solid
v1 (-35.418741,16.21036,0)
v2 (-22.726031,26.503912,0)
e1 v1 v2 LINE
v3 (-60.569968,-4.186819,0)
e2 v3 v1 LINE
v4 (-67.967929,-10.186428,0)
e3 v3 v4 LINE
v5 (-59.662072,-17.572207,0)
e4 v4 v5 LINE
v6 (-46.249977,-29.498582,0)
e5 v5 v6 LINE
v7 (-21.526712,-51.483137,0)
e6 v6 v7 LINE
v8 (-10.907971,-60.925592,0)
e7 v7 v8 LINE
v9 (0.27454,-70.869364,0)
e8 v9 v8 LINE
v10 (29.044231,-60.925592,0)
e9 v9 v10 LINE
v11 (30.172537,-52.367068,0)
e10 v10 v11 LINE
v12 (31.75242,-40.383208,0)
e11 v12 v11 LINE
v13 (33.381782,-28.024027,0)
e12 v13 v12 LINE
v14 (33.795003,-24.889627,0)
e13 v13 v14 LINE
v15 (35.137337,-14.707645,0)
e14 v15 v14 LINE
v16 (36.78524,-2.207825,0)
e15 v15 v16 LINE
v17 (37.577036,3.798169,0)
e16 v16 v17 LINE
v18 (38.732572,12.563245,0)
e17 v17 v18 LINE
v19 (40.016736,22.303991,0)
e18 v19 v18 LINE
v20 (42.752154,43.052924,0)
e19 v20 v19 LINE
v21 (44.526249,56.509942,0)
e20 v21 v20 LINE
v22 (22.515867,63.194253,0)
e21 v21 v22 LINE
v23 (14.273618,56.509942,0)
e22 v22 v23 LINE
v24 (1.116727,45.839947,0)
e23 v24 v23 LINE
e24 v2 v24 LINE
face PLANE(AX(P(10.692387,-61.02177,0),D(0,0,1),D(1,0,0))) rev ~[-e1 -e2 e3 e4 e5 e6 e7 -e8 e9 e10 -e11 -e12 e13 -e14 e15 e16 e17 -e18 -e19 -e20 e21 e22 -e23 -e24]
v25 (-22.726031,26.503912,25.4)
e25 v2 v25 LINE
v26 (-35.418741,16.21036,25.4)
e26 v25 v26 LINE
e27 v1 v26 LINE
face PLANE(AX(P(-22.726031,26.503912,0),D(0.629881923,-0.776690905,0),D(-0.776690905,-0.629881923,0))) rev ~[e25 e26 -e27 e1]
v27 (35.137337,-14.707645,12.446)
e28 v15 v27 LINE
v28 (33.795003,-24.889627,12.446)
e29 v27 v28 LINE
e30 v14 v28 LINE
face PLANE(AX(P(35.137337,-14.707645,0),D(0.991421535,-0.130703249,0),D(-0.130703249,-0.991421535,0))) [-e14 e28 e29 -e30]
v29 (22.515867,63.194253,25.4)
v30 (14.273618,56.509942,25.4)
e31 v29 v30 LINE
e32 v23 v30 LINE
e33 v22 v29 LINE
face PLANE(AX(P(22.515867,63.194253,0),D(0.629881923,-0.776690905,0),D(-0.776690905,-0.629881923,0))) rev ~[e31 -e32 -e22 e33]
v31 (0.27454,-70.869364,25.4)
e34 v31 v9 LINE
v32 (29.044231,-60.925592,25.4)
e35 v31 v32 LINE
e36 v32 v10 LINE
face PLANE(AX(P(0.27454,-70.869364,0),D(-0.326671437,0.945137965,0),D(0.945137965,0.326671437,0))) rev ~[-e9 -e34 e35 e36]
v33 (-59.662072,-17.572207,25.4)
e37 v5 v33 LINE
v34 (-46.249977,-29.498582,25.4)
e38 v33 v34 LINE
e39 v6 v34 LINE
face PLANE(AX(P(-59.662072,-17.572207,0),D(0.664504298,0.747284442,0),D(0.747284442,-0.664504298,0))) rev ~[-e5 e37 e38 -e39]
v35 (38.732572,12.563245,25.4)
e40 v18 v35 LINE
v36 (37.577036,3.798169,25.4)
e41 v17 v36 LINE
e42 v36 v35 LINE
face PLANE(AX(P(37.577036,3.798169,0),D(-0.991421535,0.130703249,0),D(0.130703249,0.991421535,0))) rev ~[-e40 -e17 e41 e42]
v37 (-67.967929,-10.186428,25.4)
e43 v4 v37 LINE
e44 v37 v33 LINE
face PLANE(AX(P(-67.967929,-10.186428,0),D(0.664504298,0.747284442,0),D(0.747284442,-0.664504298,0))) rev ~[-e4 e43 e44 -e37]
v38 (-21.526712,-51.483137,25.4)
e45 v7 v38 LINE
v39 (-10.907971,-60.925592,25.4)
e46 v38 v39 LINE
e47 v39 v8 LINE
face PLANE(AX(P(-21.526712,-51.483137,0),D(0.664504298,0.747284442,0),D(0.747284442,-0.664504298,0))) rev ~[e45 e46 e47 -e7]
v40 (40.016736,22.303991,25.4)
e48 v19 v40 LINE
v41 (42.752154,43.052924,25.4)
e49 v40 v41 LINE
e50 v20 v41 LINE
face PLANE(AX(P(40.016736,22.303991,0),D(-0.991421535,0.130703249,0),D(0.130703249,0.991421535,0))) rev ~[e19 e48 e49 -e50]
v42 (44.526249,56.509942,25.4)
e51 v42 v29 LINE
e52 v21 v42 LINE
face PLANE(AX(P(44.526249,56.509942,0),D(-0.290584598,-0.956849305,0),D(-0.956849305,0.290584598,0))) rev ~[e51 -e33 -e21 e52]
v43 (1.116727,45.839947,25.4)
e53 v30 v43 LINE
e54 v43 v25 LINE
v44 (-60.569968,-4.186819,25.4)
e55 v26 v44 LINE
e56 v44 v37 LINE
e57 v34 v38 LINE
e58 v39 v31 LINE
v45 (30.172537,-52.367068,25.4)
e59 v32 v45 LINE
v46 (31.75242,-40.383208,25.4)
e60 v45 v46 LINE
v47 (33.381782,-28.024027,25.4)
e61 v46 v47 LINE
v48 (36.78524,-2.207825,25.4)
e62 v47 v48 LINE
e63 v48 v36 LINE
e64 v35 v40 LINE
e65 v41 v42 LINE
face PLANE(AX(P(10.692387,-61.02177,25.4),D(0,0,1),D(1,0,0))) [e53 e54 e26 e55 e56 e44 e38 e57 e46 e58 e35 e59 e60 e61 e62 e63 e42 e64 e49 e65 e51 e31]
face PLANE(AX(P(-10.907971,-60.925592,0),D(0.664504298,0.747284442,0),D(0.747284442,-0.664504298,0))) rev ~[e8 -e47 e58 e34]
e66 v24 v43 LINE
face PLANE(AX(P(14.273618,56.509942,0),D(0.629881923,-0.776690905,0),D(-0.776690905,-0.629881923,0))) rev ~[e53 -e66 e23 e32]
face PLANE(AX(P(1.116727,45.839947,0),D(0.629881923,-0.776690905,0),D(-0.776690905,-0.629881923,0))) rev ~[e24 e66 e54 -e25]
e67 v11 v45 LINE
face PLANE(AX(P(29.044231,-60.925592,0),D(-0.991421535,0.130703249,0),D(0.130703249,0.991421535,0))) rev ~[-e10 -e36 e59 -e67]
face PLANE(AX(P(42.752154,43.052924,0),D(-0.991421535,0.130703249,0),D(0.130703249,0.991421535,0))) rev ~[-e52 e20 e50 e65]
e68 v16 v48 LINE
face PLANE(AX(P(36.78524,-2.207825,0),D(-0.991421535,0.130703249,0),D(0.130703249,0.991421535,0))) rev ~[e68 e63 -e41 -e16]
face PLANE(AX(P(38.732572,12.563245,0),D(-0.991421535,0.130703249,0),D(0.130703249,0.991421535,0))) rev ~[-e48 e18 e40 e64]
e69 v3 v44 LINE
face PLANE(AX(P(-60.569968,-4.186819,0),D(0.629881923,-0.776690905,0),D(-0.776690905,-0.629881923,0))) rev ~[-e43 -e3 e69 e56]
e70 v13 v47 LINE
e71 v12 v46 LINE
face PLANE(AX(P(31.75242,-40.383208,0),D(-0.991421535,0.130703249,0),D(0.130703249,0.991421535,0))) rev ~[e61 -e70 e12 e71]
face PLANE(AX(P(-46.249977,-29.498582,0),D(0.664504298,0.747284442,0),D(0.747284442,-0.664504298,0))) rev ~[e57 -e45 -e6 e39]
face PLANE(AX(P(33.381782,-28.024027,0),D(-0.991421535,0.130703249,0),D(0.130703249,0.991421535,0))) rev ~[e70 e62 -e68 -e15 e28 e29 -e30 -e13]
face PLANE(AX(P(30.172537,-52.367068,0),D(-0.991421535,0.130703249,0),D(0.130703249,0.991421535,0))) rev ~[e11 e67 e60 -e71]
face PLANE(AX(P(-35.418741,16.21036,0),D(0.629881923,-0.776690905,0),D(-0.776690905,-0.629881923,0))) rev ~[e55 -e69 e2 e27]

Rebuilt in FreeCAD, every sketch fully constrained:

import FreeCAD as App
import Part
import Sketcher

V = App.Vector
Q = App.Units.Quantity


def add_polygon(sketch, points):
    """Adds a closed chain of lines whose ends are joined by coincident constraints."""
    first, n = sketch.GeometryCount, len(points)
    for a, b in zip(points, points[1:] + points[:1]):
        sketch.addGeometry(Part.LineSegment(App.Vector(*a, 0), App.Vector(*b, 0)), False)
    for i in range(n):
        sketch.addConstraint(Sketcher.Constraint("Coincident", first + i, 2, first + (i + 1) % n, 1))

doc = App.newDocument("Part")
params = doc.addObject("Spreadsheet::Sheet", "Params")
for row, (alias, value) in enumerate([
    ("pad1_length", "1 in"),
    ("pad2_length", "0.49 in"),
], start=1):
    params.set(f"A{row}", alias)
    params.set(f"B{row}", "=" + value)
    params.setAlias(f"B{row}", alias)

body = doc.addObject("PartDesign::Body", "Body")

sketch1 = doc.addObject("Sketcher::SketchObject", "Sketch")
body.addObject(sketch1)
sketch1.AttachmentSupport = (doc.XY_Plane, [""])
sketch1.MapMode = "FlatFace"
add_polygon(sketch1, [(-11, -61), (0, -71), (29, -61), (30, -52), (32, -40), (33, -28), (37, -2), (38, 4), (39, 13), (40, 22), (43, 43), (45, 57), (23, 63), (14, 57), (1, 46), (-23, 27), (-35, 16), (-61, -4), (-68, -10), (-60, -18), (-46, -29), (-22, -51)])
sketch1.addConstraint([
    Sketcher.Constraint("Parallel", 2, 3),
    Sketcher.Constraint("Parallel", 3, 4),
    Sketcher.Constraint("Parallel", 4, 5),
    Sketcher.Constraint("Parallel", 5, 6),
    Sketcher.Constraint("Parallel", 6, 7),
    Sketcher.Constraint("Parallel", 7, 8),
    Sketcher.Constraint("Parallel", 8, 9),
    Sketcher.Constraint("Parallel", 9, 10),
    Sketcher.Constraint("Parallel", 12, 13),
    Sketcher.Constraint("Parallel", 13, 14),
    Sketcher.Constraint("Parallel", 14, 15),
    Sketcher.Constraint("Parallel", 15, 16),
    Sketcher.Constraint("Parallel", 16, 17),
    Sketcher.Constraint("Parallel", 0, 18),
    Sketcher.Constraint("Parallel", 18, 19),
    Sketcher.Constraint("Parallel", 19, 20),
    Sketcher.Constraint("Parallel", 20, 21),
    Sketcher.Constraint("Horizontal", 10, 2, 12, 2),
    Sketcher.Constraint("Horizontal", 1, 2, 21, 2),
    Sketcher.Constraint("DistanceY", 3, 2, 8, 2, Q("2.4679999 in")),
    Sketcher.Constraint("DistanceX", 2, 2, 3, 2, Q("0.0622001 in")),
    Sketcher.Constraint("DistanceX", 0, 2, 5, 2, Q("36.510701 mm")),
    Sketcher.Constraint("DistanceX", 2, 2, 6, 2, Q("7.404498 mm")),
    Sketcher.Constraint("DistanceX", 6, 2, 8, 2, Q("2.4397 mm")),
    Sketcher.Constraint("Distance", 2, Q("8.632578 mm")),
    Sketcher.Constraint("Distance", 4, Q("12.466121 mm")),
    Sketcher.Constraint("Distance", 5, Q("26.039582 mm")),
    Sketcher.Constraint("Distance", 8, Q("9.82503 mm")),
    Sketcher.Constraint("Distance", 18, Q("11.114719 mm")),
    Sketcher.Constraint("DistanceX", -1, 1, 0, 2, Q("0.27454 mm")),
    Sketcher.Constraint("DistanceY", 1, 2, -1, 1, Q("60.925592 mm")),
    Sketcher.Constraint("DistanceX", -1, 1, 10, 2, Q("44.526249 mm")),
    Sketcher.Constraint("DistanceX", -1, 1, 12, 2, Q("14.273618 mm")),
    Sketcher.Constraint("DistanceX", 14, 2, -1, 1, Q("22.726031 mm")),
    Sketcher.Constraint("DistanceX", 15, 2, -1, 1, Q("35.418741 mm")),
    Sketcher.Constraint("DistanceY", -1, 1, 15, 2, Q("16.21036 mm")),
    Sketcher.Constraint("DistanceY", 16, 2, -1, 1, Q("4.186819 mm")),
    Sketcher.Constraint("DistanceX", 17, 2, -1, 1, Q("67.967929 mm")),
    Sketcher.Constraint("DistanceX", 21, 2, -1, 1, Q("10.907971 mm")),
    Sketcher.Constraint("DistanceX", 8, 2, 9, 2, Q("2.735419 mm")),
    Sketcher.Constraint("DistanceY", 10, 2, 11, 2, Q("6.684311 mm")),
    Sketcher.Constraint("DistanceX", 13, 2, 12, 2, Q("13.156891 mm")),
    Sketcher.Constraint("DistanceX", 17, 2, 19, 2, Q("21.717952 mm")),
    Sketcher.Constraint("DistanceX", 18, 2, 20, 2, Q("38.13536 mm")),
])
pad1 = doc.addObject("PartDesign::Pad", "Pad")
body.addObject(pad1)
pad1.Profile = sketch1
pad1.setExpression("Length", "Params.pad1_length")

sketch2 = doc.addObject("Sketcher::SketchObject", "Sketch001")
body.addObject(sketch2)
sketch2.AttachmentSupport = (doc.XY_Plane, [""])
sketch2.MapMode = "FlatFace"
add_polygon(sketch2, [(29.576228, -56.890246), (29.044231, -60.925592), (0.27454, -70.869364), (-5.660612, -65.591676), (-10.907971, -60.925592), (-67.967929, -10.186428), (-43.04058, 10.02919), (-23.253836, 26.075872), (-4.930211, 40.935993), (6.858367, 50.496311), (22.515867, 63.194253), (44.526249, 56.509942), (43.103498, 45.717964), (41.252691, 31.679068), (39.833647, 20.915213), (36.78524, -2.207825), (35.137337, -14.707645), (33.795003, -24.889627), (32.716178, -33.072826), (31.117754, -45.197328)])
sketch2.addConstraint([
    Sketcher.Constraint("DistanceX", 4, 2, 7, 2, Q("2.4817999 in")),
    Sketcher.Constraint("Distance", 6, Q("25.4757 mm")),
    Sketcher.Constraint("DistanceY", 4, 2, 6, 2, Q("36.262301 mm")),
    Sketcher.Constraint("DistanceX", 2, 2, 7, 2, Q("0.730402 mm")),
    Sketcher.Constraint("DistanceX", 8, 2, 9, 2, Q("15.657499 mm")),
    Sketcher.Constraint("DistanceX", 7, 2, 12, 2, Q("46.182902 mm")),
    Sketcher.Constraint("DistanceY", 13, 2, 8, 2, Q("29.581098 mm")),
    Sketcher.Constraint("DistanceY", 17, 2, 16, 2, Q("8.183199 mm")),
    Sketcher.Constraint("DistanceY", 17, 2, 14, 2, Q("30.865001 mm")),
    Sketcher.Constraint("DistanceY", 18, 2, 17, 2, Q("12.124502 mm")),
    Sketcher.Constraint("Distance", 4, Q("76.356411 mm")),
    Sketcher.Constraint("Distance", 9, Q("20.159241 mm")),
    Sketcher.Constraint("Distance", 12, Q("14.16037 mm")),
    Sketcher.Constraint("Distance", 13, Q("10.856992 mm")),
    Sketcher.Constraint("Distance", 18, Q("12.229411 mm")),
    Sketcher.Constraint("DistanceX", -1, 1, 0, 2, Q("29.044231 mm")),
    Sketcher.Constraint("DistanceY", 0, 2, -1, 1, Q("60.925592 mm")),
    Sketcher.Constraint("DistanceX", -1, 1, 1, 2, Q("0.27454 mm")),
    Sketcher.Constraint("DistanceX", 3, 2, -1, 1, Q("10.907971 mm")),
    Sketcher.Constraint("DistanceY", 3, 2, -1, 1, Q("60.925592 mm")),
    Sketcher.Constraint("DistanceX", 4, 2, -1, 1, Q("67.967929 mm")),
    Sketcher.Constraint("DistanceX", 5, 2, -1, 1, Q("43.04058 mm")),
    Sketcher.Constraint("DistanceY", -1, 1, 5, 2, Q("10.02919 mm")),
    Sketcher.Constraint("DistanceY", -1, 1, 8, 2, Q("50.496311 mm")),
    Sketcher.Constraint("DistanceX", -1, 1, 10, 2, Q("44.526249 mm")),
    Sketcher.Constraint("DistanceY", -1, 1, 10, 2, Q("56.509942 mm")),
    Sketcher.Constraint("DistanceX", -1, 1, 14, 2, Q("36.78524 mm")),
    Sketcher.Constraint("DistanceY", 18, 2, -1, 1, Q("45.197328 mm")),
    Sketcher.Constraint("DistanceY", 2, 2, 6, 2, Q("91.667549 mm")),
    Sketcher.Constraint("DistanceY", 6, 2, 7, 2, Q("14.86012 mm")),
    Sketcher.Constraint("DistanceX", 7, 2, 8, 2, Q("11.788578 mm")),
    Sketcher.Constraint("DistanceX", 11, 2, 10, 2, Q("1.422752 mm")),
    Sketcher.Constraint("DistanceY", 11, 2, 10, 2, Q("10.791978 mm")),
    Sketcher.Constraint("DistanceY", 15, 2, 14, 2, Q("12.49982 mm")),
    Sketcher.Constraint("DistanceX", 15, 2, 13, 2, Q("4.69631 mm")),
    Sketcher.Constraint("DistanceX", 17, 2, 15, 2, Q("2.421159 mm")),
    Sketcher.Constraint("DistanceX", 18, 2, 16, 2, Q("2.677249 mm")),
    Sketcher.Constraint("DistanceY", 19, 2, 18, 2, Q("11.692918 mm")),
    Sketcher.Constraint("DistanceX", 19, 2, 17, 2, Q("3.13995 mm")),
    Sketcher.Constraint("Distance", 1, Q("30.439674 mm")),
])
pad2 = doc.addObject("PartDesign::Pad", "Pad001")
body.addObject(pad2)
pad2.Profile = sketch2
pad2.setExpression("Length", "Params.pad2_length")

doc.recompute()
